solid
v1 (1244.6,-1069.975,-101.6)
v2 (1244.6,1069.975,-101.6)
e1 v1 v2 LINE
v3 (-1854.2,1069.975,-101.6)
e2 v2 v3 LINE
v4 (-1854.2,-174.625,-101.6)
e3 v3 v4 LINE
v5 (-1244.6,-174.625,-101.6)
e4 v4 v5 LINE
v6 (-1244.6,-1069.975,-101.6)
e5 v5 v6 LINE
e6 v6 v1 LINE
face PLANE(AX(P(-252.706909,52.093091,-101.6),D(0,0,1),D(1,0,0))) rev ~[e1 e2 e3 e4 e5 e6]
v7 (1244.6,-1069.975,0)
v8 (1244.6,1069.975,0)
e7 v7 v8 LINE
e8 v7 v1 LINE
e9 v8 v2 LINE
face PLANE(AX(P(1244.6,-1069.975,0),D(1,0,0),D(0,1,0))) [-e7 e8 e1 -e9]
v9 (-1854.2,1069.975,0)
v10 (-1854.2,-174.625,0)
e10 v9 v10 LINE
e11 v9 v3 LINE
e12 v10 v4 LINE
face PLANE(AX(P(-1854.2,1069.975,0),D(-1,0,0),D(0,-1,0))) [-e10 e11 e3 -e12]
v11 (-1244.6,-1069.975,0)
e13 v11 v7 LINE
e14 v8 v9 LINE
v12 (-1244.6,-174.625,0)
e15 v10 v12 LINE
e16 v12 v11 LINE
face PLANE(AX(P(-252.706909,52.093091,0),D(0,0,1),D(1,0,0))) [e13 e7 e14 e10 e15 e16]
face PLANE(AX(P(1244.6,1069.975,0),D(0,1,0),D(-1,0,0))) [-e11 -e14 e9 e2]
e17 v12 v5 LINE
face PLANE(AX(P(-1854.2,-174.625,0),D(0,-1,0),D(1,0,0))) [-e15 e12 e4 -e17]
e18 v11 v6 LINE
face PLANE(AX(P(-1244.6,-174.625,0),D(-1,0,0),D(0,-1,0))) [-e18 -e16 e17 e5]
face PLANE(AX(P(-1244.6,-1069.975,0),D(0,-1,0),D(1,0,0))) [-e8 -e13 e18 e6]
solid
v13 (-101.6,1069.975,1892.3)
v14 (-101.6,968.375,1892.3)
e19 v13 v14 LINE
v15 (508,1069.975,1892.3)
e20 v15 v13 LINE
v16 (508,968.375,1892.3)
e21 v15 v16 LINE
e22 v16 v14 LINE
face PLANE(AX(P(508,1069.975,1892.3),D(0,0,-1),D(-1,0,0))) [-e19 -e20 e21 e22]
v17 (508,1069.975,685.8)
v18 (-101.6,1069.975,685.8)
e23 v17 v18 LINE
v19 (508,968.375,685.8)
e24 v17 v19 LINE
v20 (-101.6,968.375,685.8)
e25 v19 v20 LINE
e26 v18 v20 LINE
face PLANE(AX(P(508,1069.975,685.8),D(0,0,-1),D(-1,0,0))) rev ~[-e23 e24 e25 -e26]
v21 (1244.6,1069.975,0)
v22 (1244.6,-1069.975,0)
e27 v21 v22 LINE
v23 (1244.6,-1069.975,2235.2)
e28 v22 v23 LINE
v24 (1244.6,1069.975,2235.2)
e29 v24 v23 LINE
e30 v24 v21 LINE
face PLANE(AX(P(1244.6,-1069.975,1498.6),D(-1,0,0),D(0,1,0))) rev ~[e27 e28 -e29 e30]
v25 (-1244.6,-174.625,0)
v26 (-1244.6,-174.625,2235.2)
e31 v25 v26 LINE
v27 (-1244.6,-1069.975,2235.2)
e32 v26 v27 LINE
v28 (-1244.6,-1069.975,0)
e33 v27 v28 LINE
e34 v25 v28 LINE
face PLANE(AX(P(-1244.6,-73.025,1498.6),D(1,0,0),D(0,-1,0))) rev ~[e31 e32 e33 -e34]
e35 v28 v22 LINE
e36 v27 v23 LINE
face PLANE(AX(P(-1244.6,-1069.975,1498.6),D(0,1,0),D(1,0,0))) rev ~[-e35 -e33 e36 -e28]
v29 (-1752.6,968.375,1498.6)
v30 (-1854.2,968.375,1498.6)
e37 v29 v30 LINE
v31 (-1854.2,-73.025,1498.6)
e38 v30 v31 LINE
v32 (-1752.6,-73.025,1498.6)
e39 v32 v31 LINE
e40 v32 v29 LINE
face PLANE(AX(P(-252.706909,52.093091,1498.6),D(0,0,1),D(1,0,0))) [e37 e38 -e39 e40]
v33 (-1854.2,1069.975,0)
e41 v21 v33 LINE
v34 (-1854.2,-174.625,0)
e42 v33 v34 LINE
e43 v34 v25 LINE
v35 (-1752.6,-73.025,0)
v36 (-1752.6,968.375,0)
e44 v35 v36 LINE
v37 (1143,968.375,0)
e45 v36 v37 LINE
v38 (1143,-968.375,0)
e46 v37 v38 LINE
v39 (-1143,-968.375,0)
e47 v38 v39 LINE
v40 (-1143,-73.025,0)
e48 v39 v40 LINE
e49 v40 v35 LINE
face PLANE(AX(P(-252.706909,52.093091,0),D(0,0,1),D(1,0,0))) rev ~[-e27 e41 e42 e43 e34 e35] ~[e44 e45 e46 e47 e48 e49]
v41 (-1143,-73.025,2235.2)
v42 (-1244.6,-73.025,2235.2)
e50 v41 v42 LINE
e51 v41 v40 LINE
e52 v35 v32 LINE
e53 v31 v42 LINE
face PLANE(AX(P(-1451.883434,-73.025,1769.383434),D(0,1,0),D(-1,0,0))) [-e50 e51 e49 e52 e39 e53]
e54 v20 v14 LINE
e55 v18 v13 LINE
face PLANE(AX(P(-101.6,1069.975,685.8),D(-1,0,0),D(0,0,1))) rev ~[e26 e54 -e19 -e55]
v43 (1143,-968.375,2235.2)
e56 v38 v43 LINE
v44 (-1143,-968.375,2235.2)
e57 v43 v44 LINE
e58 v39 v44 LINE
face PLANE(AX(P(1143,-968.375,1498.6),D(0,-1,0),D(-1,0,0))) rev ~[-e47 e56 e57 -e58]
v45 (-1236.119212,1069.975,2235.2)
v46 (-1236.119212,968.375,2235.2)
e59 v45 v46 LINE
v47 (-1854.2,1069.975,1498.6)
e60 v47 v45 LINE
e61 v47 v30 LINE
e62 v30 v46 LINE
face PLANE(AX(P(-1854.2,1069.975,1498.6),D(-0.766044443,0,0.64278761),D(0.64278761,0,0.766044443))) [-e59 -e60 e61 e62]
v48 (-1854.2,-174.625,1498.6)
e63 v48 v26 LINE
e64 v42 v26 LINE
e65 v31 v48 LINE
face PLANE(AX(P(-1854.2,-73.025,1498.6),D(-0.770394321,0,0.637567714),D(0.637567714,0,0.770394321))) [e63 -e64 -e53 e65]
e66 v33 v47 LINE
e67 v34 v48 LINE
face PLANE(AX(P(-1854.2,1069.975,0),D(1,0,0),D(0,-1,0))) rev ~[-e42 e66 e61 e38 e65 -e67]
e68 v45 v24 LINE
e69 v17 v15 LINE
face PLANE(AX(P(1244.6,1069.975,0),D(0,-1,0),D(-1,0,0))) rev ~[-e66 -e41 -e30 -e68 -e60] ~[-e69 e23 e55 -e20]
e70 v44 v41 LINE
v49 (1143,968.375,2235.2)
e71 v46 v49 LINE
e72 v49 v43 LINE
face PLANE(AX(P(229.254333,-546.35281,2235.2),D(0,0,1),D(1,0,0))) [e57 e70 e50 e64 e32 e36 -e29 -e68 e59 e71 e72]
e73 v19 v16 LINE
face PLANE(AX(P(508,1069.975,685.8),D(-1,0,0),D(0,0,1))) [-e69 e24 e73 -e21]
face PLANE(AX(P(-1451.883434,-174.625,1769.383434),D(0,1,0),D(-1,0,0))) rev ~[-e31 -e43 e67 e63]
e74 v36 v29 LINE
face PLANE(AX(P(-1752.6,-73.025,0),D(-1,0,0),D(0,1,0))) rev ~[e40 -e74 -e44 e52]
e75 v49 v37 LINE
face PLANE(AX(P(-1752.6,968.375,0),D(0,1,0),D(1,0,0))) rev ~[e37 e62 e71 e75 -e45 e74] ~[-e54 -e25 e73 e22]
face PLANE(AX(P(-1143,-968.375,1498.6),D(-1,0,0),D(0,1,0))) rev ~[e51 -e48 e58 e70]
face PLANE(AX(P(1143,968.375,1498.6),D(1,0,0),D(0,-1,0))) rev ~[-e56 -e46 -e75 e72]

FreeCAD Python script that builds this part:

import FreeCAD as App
import Part
import Sketcher
from FreeCAD import Vector
Q = App.Units.Quantity


def add_polygon(sketch, points):
    """Adds a closed chain of lines whose ends are joined by coincident constraints."""
    first, n = sketch.GeometryCount, len(points)
    for a, b in zip(points, points[1:] + points[:1]):
        sketch.addGeometry(Part.LineSegment(App.Vector(*a, 0), App.Vector(*b, 0)), False)
    for i in range(n):
        sketch.addConstraint(Sketcher.Constraint("Coincident", first + i, 2, first + (i + 1) % n, 1))

doc = App.newDocument("Part")
body = doc.addObject("PartDesign::Body", "Body")

# Sketch on XY plane
sketch1 = body.newObject("Sketcher::SketchObject", "Sketch")
sketch1.AttachmentSupport = (doc.getObject("XY_Plane"), [""])
sketch1.MapMode = "FlatFace"
add_polygon(sketch1, [(-1854, -175), (-1245, -175), (-1245, -1070), (1245, -1070), (1245, 1070), (-1854, 1070)])  # lines 0-5
add_polygon(sketch1, [(-1753, 968), (1143, 968), (1143, -968), (-1143, -968), (-1143, -73), (-1753, -73)])  # lines 6-11
sketch1.addConstraint([
    Sketcher.Constraint("Horizontal", 0),
    Sketcher.Constraint("Vertical", 1),
    Sketcher.Constraint("Horizontal", 2),
    Sketcher.Constraint("Vertical", 3),
    Sketcher.Constraint("Horizontal", 4),
    Sketcher.Constraint("Vertical", 5),
    Sketcher.Constraint("Horizontal", 6),
    Sketcher.Constraint("Vertical", 7),
    Sketcher.Constraint("Horizontal", 8),
    Sketcher.Constraint("Vertical", 9),
    Sketcher.Constraint("Horizontal", 10),
    Sketcher.Constraint("Vertical", 11),
    Sketcher.Constraint("Symmetric", 1, 2, 3, 2, -1, 1),
    Sketcher.Constraint("Symmetric", 6, 2, 8, 2, -1, 1),
    Sketcher.Constraint("Equal", 0, 10),
    Sketcher.Constraint("Equal", 1, 9),
    Sketcher.Constraint("DistanceX", 0, 1, 0, 2, Q("24 in")),
    Sketcher.Constraint("DistanceX", 2, 1, 2, 2, Q("98 in")),
    Sketcher.Constraint("DistanceX", 6, 1, 6, 2, Q("114 in")),
    Sketcher.Constraint("DistanceY", 5, 2, 5, 1, Q("49 in")),
    Sketcher.Constraint("DistanceY", 11, 1, 11, 2, Q("41 in")),
    Sketcher.Constraint("DistanceY", 1, 2, 1, 1, Q("35.25 in")),
])
pad1 = body.newObject("PartDesign::Pad", "Pad")
pad1.Profile = sketch1
pad1.Length = Q("59 in")

# Sketch on XZ plane
sketch2 = body.newObject("Sketcher::SketchObject", "Sketch001")
sketch2.AttachmentSupport = (doc.getObject("XZ_Plane"), [""])
sketch2.MapMode = "FlatFace"
sketch2.AttachmentOffset = App.Placement(Vector(0, 0, -42.125 * 25.4), App.Rotation())
add_polygon(sketch2, [(1245, 0), (-1854, 0), (-1854, 1499), (-1236, 2235), (1245, 2235)])  # lines 0-4
sketch2.addConstraint([
    Sketcher.Constraint("Horizontal", 0),
    Sketcher.Constraint("Vertical", 1),
    Sketcher.Constraint("Horizontal", 3),
    Sketcher.Constraint("Vertical", 4),
    Sketcher.Constraint("PointOnObject", 0, 2, -1),
    Sketcher.Constraint("DistanceX", 0, 2, 0, 1, Q("122 in")),
    Sketcher.Constraint("DistanceY", 1, 1, 1, 2, Q("59 in")),
    Sketcher.Constraint("DistanceY", 4, 2, 4, 1, Q("88 in")),
    Sketcher.Constraint("DistanceX", 0, 2, -1, 1, Q("73 in")),
    Sketcher.Constraint("Angle", 2, Q("50 deg")),
])
pad2 = body.newObject("PartDesign::Pad", "Pad001")
pad2.Profile = sketch2
pad2.Length = Q("4 in")

# Sketch on XY plane
sketch3 = body.newObject("Sketcher::SketchObject", "Sketch002")
sketch3.AttachmentSupport = (doc.getObject("XY_Plane"), [""])
sketch3.MapMode = "FlatFace"
sketch3.AttachmentOffset = App.Placement(Vector(0, 0, 59 * 25.4), App.Rotation())
add_polygon(sketch3, [(-1245, -1070), (1245, -1070), (1245, 968), (1143, 968), (1143, -968), (-1143, -968), (-1143, -73), (-1245, -73)])  # lines 0-7
sketch3.addConstraint([
    Sketcher.Constraint("Horizontal", 0),
    Sketcher.Constraint("Vertical", 1),
    Sketcher.Constraint("Horizontal", 2),
    Sketcher.Constraint("Vertical", 3),
    Sketcher.Constraint("Horizontal", 4),
    Sketcher.Constraint("Vertical", 5),
    Sketcher.Constraint("Horizontal", 6),
    Sketcher.Constraint("Vertical", 7),
    Sketcher.Constraint("Symmetric", 2, 2, 4, 2, -1, 1),
    Sketcher.Constraint("Equal", 2, 6),
    Sketcher.Constraint("DistanceX", 0, 1, 0, 2, Q("98 in")),
    Sketcher.Constraint("DistanceX", 2, 2, 2, 1, Q("4 in")),
    Sketcher.Constraint("DistanceY", 0, 2, 3, 2, Q("4 in")),
    Sketcher.Constraint("DistanceY", 5, 2, 2, 2, Q("41 in")),
    Sketcher.Constraint("DistanceY", 1, 1, 1, 2, Q("80.25 in")),
])
pad3 = body.newObject("PartDesign::Pad", "Pad002")
pad3.Profile = sketch3
pad3.Length = Q("29 in")

# Sketch on XZ plane
sketch4 = body.newObject("Sketcher::SketchObject", "Sketch003")
sketch4.AttachmentSupport = (doc.getObject("XZ_Plane"), [""])
sketch4.MapMode = "FlatFace"
sketch4.AttachmentOffset = App.Placement(Vector(0, 0, 2.875 * 25.4), App.Rotation())
add_polygon(sketch4, [(-1245, 2235), (-1245, 1499), (-1854, 1499)])  # lines 0-2
sketch4.addConstraint([
    Sketcher.Constraint("Vertical", 0),
    Sketcher.Constraint("Horizontal", 1),
    Sketcher.Constraint("DistanceX", 1, 2, 1, 1, Q("24 in")),
    Sketcher.Constraint("DistanceY", 0, 2, 0, 1, Q("29 in")),
    Sketcher.Constraint("DistanceX", 0, 2, -1, 1, Q("49 in")),
    Sketcher.Constraint("DistanceY", -1, 1, 0, 2, Q("59 in")),
])
pad4 = body.newObject("PartDesign::Pad", "Pad003")
pad4.Profile = sketch4
pad4.Length = Q("4 in")

# Sketch on XZ plane
sketch5 = body.newObject("Sketcher::SketchObject", "Sketch004")
sketch5.AttachmentSupport = (doc.getObject("XZ_Plane"), [""])
sketch5.MapMode = "FlatFace"
sketch5.AttachmentOffset = App.Placement(Vector(0, 0, -42.125 * 25.4), App.Rotation())
add_polygon(sketch5, [(508, 1892), (508, 686), (-102, 686), (-102, 1892)])  # lines 0-3
sketch5.addConstraint([
    Sketcher.Constraint("Vertical", 0),
    Sketcher.Constraint("Horizontal", 1),
    Sketcher.Constraint("Vertical", 2),
    Sketcher.Constraint("Horizontal", 3),
    Sketcher.Constraint("DistanceX", 1, 2, 1, 1, Q("24 in")),
    Sketcher.Constraint("DistanceY", 0, 2, 0, 1, Q("47.5 in")),
    Sketcher.Constraint("DistanceX", -1, 1, 0, 2, Q("20 in")),
    Sketcher.Constraint("DistanceY", -1, 1, 0, 2, Q("27 in")),
])
pocket1 = body.newObject("PartDesign::Pocket", "Pocket")
pocket1.Profile = sketch5
pocket1.Length = Q("4 in")
pocket1.Reversed = True
body2 = doc.addObject("PartDesign::Body", "Body001")

# Sketch on XY plane
sketch6 = body2.newObject("Sketcher::SketchObject", "Sketch005")
sketch6.AttachmentSupport = (doc.getObject("XY_Plane001"), [""])
sketch6.MapMode = "FlatFace"
add_polygon(sketch6, [(-1854, -175), (-1245, -175), (-1245, -1070), (1245, -1070), (1245, 1070), (-1854, 1070)])  # lines 0-5
sketch6.addConstraint([
    Sketcher.Constraint("Horizontal", 0),
    Sketcher.Constraint("Vertical", 1),
    Sketcher.Constraint("Horizontal", 2),
    Sketcher.Constraint("Vertical", 3),
    Sketcher.Constraint("Horizontal", 4),
    Sketcher.Constraint("Vertical", 5),
    Sketcher.Constraint("Symmetric", 1, 2, 3, 2, -1, 1),
    Sketcher.Constraint("DistanceX", 0, 1, 0, 2, Q("24 in")),
    Sketcher.Constraint("DistanceX", 2, 1, 2, 2, Q("98 in")),
    Sketcher.Constraint("DistanceY", 5, 2, 5, 1, Q("49 in")),
    Sketcher.Constraint("DistanceY", 1, 2, 1, 1, Q("35.25 in")),
])
pad5 = body2.newObject("PartDesign::Pad", "Pad004")
pad5.Profile = sketch6
pad5.Length = Q("4 in")
pad5.Reversed = True

doc.recompute()
